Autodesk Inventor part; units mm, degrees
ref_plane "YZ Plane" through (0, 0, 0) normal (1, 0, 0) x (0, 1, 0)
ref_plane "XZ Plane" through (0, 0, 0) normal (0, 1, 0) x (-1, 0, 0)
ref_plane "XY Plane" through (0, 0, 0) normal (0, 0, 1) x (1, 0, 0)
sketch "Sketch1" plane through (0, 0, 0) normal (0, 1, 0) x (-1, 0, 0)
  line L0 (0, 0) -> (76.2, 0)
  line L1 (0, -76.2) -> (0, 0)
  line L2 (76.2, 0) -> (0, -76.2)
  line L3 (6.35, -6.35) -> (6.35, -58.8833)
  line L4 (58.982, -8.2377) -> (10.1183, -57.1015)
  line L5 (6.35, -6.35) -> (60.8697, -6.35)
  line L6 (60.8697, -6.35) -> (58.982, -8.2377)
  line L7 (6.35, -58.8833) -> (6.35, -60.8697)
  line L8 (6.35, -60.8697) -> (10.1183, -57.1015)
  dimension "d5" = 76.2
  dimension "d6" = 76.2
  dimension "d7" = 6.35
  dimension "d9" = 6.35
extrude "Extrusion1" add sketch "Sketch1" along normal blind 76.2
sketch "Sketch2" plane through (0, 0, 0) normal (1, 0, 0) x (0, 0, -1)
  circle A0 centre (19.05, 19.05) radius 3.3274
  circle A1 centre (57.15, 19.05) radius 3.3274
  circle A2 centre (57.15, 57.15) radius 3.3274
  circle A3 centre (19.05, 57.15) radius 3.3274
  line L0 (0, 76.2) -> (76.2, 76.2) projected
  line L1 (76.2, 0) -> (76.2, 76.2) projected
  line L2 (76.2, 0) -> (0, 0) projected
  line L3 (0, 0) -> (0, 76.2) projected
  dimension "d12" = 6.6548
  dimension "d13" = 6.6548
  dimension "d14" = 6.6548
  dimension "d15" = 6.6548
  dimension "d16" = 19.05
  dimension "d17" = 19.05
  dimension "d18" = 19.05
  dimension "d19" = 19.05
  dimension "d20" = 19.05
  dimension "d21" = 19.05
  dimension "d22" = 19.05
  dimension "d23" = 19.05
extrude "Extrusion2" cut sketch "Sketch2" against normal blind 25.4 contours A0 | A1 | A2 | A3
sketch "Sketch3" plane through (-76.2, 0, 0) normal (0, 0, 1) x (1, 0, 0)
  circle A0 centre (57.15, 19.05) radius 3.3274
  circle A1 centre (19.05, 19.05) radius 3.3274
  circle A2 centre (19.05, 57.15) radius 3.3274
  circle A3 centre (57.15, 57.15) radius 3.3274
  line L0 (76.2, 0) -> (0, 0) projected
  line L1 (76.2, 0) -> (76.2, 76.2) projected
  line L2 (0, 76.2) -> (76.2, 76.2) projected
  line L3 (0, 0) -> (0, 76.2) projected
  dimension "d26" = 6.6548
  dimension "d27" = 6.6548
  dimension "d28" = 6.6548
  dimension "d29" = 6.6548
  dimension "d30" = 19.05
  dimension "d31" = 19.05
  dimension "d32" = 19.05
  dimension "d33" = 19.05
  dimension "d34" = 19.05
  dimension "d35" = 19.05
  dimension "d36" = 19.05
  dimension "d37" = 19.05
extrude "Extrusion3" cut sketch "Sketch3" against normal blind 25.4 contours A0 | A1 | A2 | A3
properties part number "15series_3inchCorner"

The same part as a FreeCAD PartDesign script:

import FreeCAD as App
import Part
import Sketcher

V = App.Vector
Q = App.Units.Quantity


def add_polygon(sketch, points):
    """Adds a closed chain of lines whose ends are joined by coincident constraints."""
    first, n = sketch.GeometryCount, len(points)
    for a, b in zip(points, points[1:] + points[:1]):
        sketch.addGeometry(Part.LineSegment(App.Vector(*a, 0), App.Vector(*b, 0)), False)
    for i in range(n):
        sketch.addConstraint(Sketcher.Constraint("Coincident", first + i, 2, first + (i + 1) % n, 1))

doc = App.newDocument("Part")
body = doc.addObject("PartDesign::Body", "Body")

sketch1 = body.newObject("Sketcher::SketchObject", "Sketch")
sketch1.AttachmentSupport = (doc.getObject("XZ_Plane"), [""])
sketch1.MapMode = "FlatFace"
add_polygon(sketch1, [(-76.2, 0), (0, 0), (0, -76.2)])
add_polygon(sketch1, [(-6.35, -60.8697), (-6.35, -6.35), (-60.8697, -6.35), (-58.982, -8.2377), (-10.1183, -57.1015)])
sketch1.addConstraint(Sketcher.Constraint("Horizontal", 0))
sketch1.addConstraint(Sketcher.Constraint("Vertical", 1))
sketch1.addConstraint(Sketcher.Constraint("Vertical", 3))
sketch1.addConstraint(Sketcher.Constraint("Horizontal", 4))
sketch1.addConstraint(Sketcher.Constraint("Coincident", 0, 2, -1, 1))
sketch1.addConstraint(Sketcher.Constraint("Parallel", 2, 5))
sketch1.addConstraint(Sketcher.Constraint("Parallel", 5, 6))
sketch1.addConstraint(Sketcher.Constraint("Parallel", 6, 7))
sketch1.addConstraint(Sketcher.Constraint("Equal", 0, 1))
sketch1.addConstraint(Sketcher.Constraint("DistanceX", 0, 1, 0, 2, Q("3 in")))
sketch1.addConstraint(Sketcher.Constraint("DistanceX", 3, 2, -1, 1, Q("0.25 in")))
sketch1.addConstraint(Sketcher.Constraint("DistanceY", 3, 2, -1, 1, Q("0.25 in")))
sketch1.addConstraint(Sketcher.Constraint("Distance", 5, Q("0.1051 in")))
sketch1.addConstraint(Sketcher.Constraint("Distance", 7, Q("0.2098 in")))
sketch1.addConstraint(Sketcher.Constraint("DistanceX", 4, 2, 4, 1, 54.5197))
pad1 = body.newObject("PartDesign::Pad", "Pad")
pad1.Profile = sketch1
pad1.Length = Q("3 in")
pad1.Reversed = True

sketch2 = body.newObject("Sketcher::SketchObject", "Sketch001")
sketch2.AttachmentSupport = (doc.getObject("YZ_Plane"), [""])
sketch2.MapMode = "FlatFace"
sketch2.addGeometry(Part.Circle(V(19.05, -19.05, 0), V(0, 0, 1), 3.3274), False)
sketch2.addGeometry(Part.Circle(V(19.05, -57.15, 0), V(0, 0, 1), 3.3274), False)
sketch2.addGeometry(Part.Circle(V(57.15, -57.15, 0), V(0, 0, 1), 3.3274), False)
sketch2.addGeometry(Part.Circle(V(57.15, -19.05, 0), V(0, 0, 1), 3.3274), False)
sketch2.addConstraint(Sketcher.Constraint("Equal", 0, 1))
sketch2.addConstraint(Sketcher.Constraint("Equal", 1, 2))
sketch2.addConstraint(Sketcher.Constraint("Equal", 2, 3))
sketch2.addConstraint(Sketcher.Constraint("Horizontal", 1, 3, 2, 3))
sketch2.addConstraint(Sketcher.Constraint("Horizontal", 0, 3, 3, 3))
sketch2.addConstraint(Sketcher.Constraint("Vertical", 0, 3, 1, 3))
sketch2.addConstraint(Sketcher.Constraint("Vertical", 2, 3, 3, 3))
sketch2.addConstraint(Sketcher.Constraint("Diameter", 0, Q("0.262 in")))
sketch2.addConstraint(Sketcher.Constraint("DistanceX", -1, 1, 0, 3, Q("0.75 in")))
sketch2.addConstraint(Sketcher.Constraint("DistanceY", 0, 3, -1, 1, Q("0.75 in")))
sketch2.addConstraint(Sketcher.Constraint("DistanceY", 1, 3, 0, 3, Q("1.5 in")))
sketch2.addConstraint(Sketcher.Constraint("DistanceX", 1, 3, 2, 3, Q("1.5 in")))
pocket1 = body.newObject("PartDesign::Pocket", "Pocket")
pocket1.Profile = sketch2
pocket1.Length = Q("1 in")

sketch3 = body.newObject("Sketcher::SketchObject", "Sketch002")
sketch3.AttachmentSupport = (doc.getObject("XY_Plane"), [""])
sketch3.MapMode = "FlatFace"
sketch3.addGeometry(Part.Circle(V(-19.05, 19.05, 0), V(0, 0, 1), 3.3274), False)
sketch3.addGeometry(Part.Circle(V(-57.15, 19.05, 0), V(0, 0, 1), 3.3274), False)
sketch3.addGeometry(Part.Circle(V(-57.15, 57.15, 0), V(0, 0, 1), 3.3274), False)
sketch3.addGeometry(Part.Circle(V(-19.05, 57.15, 0), V(0, 0, 1), 3.3274), False)
sketch3.addConstraint(Sketcher.Constraint("Equal", 0, 1))
sketch3.addConstraint(Sketcher.Constraint("Equal", 1, 2))
sketch3.addConstraint(Sketcher.Constraint("Equal", 2, 3))
sketch3.addConstraint(Sketcher.Constraint("Horizontal", 0, 3, 1, 3))
sketch3.addConstraint(Sketcher.Constraint("Horizontal", 2, 3, 3, 3))
sketch3.addConstraint(Sketcher.Constraint("Vertical", 1, 3, 2, 3))
sketch3.addConstraint(Sketcher.Constraint("Vertical", 0, 3, 3, 3))
sketch3.addConstraint(Sketcher.Constraint("Diameter", 0, Q("0.262 in")))
sketch3.addConstraint(Sketcher.Constraint("DistanceX", 0, 3, -1, 1, Q("0.75 in")))
sketch3.addConstraint(Sketcher.Constraint("DistanceY", -1, 1, 0, 3, Q("0.75 in")))
sketch3.addConstraint(Sketcher.Constraint("DistanceX", 1, 3, 0, 3, Q("1.5 in")))
sketch3.addConstraint(Sketcher.Constraint("DistanceY", 1, 3, 2, 3, Q("1.5 in")))
pocket2 = body.newObject("PartDesign::Pocket", "Pocket001")
pocket2.Profile = sketch3
pocket2.Length = Q("1 in")

doc.recompute()
